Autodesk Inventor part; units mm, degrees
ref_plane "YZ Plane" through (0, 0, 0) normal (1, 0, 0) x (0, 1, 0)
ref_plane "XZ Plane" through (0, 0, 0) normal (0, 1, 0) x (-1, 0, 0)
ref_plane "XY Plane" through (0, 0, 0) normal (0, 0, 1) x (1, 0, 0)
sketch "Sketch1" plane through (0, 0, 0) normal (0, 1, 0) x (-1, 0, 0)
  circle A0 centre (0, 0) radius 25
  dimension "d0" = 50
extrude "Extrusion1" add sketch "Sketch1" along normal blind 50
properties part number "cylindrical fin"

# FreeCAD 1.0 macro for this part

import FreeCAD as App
import Part
import Sketcher
from FreeCAD import Vector

doc = App.newDocument("Part")
params = doc.addObject("Spreadsheet::Sheet", "Params")
for row, (alias, value) in enumerate([
    ("sketch1_diameter", "50 mm"),
    ("pad1_length", "50 mm"),
], start=1):
    params.set(f"A{row}", alias)
    params.set(f"B{row}", "=" + value)
    params.setAlias(f"B{row}", alias)

body = doc.addObject("PartDesign::Body", "Body")

# Sketch on XZ plane
sketch1 = body.newObject("Sketcher::SketchObject", "Sketch")
sketch1.AttachmentSupport = (doc.getObject("XZ_Plane"), [""])
sketch1.MapMode = "FlatFace"
sketch1.addGeometry(Part.Circle(Vector(0, 0, 0), Vector(0, 0, 1), 25), False)
sketch1.addConstraint([
    Sketcher.Constraint("Coincident", 0, 3, -1, 1),
    Sketcher.Constraint("Diameter", 0, 50.0),
])
sketch1.setExpression("Constraints[1]", "Params.sketch1_diameter")
pad1 = body.newObject("PartDesign::Pad", "Pad")
pad1.Profile = sketch1
pad1.setExpression("Length", "Params.pad1_length")
pad1.Reversed = True

doc.recompute()
